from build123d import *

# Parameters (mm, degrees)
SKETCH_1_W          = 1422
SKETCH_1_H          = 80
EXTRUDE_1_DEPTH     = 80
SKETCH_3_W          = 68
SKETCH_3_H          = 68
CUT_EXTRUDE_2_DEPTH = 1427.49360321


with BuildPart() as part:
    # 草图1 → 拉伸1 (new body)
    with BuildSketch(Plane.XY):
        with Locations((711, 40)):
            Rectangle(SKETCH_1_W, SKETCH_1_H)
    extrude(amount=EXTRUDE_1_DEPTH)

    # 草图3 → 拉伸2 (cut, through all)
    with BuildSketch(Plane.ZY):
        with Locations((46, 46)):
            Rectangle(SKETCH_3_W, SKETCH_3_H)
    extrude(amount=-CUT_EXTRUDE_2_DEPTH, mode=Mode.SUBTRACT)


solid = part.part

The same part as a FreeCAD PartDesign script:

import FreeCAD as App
import Part
import Sketcher
from FreeCAD import Vector
Q = App.Units.Quantity


def add_polygon(sketch, points):
    """Adds a closed chain of lines whose ends are joined by coincident constraints."""
    first, n = sketch.GeometryCount, len(points)
    for a, b in zip(points, points[1:] + points[:1]):
        sketch.addGeometry(Part.LineSegment(App.Vector(*a, 0), App.Vector(*b, 0)), False)
    for i in range(n):
        sketch.addConstraint(Sketcher.Constraint("Coincident", first + i, 2, first + (i + 1) % n, 1))

doc = App.newDocument("Part")
body = doc.addObject("PartDesign::Body", "Body")

sketch1 = body.newObject("Sketcher::SketchObject", "Sketch")
sketch1.AttachmentSupport = (doc.getObject("XY_Plane"), [""])
sketch1.MapMode = "FlatFace"
add_polygon(sketch1, [(0, 80), (0, 0), (1422, 0), (1422, 80)])
sketch1.addConstraint([
    Sketcher.Constraint("Vertical", 0),
    Sketcher.Constraint("Horizontal", 1),
    Sketcher.Constraint("Vertical", 2),
    Sketcher.Constraint("Horizontal", 3),
    Sketcher.Constraint("Coincident", 0, 2, -1, 1),
    Sketcher.Constraint("DistanceX", 1, 1, 1, 2, Q("1422 mm")),
    Sketcher.Constraint("DistanceY", 0, 2, 0, 1, Q("80 mm")),
])
pad1 = body.newObject("PartDesign::Pad", "Pad")
pad1.Profile = sketch1
pad1.Length = 80

sketch2 = body.newObject("Sketcher::SketchObject", "Sketch001")
sketch2.AttachmentSupport = (doc.getObject("YZ_Plane"), [""])
sketch2.MapMode = "FlatFace"
add_polygon(sketch2, [(80, 12), (12, 12), (12, 80), (80, 80)])
sketch2.addConstraint([
    Sketcher.Constraint("Horizontal", 0),
    Sketcher.Constraint("Vertical", 1),
    Sketcher.Constraint("Horizontal", 2),
    Sketcher.Constraint("Vertical", 3),
    Sketcher.Constraint("Equal", 2, 1),
    Sketcher.Constraint("DistanceX", 0, 2, 0, 1, Q("68 mm")),
    Sketcher.Constraint("DistanceX", -1, 1, 0, 2, Q("12 mm")),
    Sketcher.Constraint("DistanceY", -1, 1, 0, 2, Q("12 mm")),
])
pocket1 = body.newObject("PartDesign::Pocket", "Pocket")
pocket1.Profile = sketch2
pocket1.Type = "ThroughAll"
pocket1.Reversed = True

doc.recompute()
